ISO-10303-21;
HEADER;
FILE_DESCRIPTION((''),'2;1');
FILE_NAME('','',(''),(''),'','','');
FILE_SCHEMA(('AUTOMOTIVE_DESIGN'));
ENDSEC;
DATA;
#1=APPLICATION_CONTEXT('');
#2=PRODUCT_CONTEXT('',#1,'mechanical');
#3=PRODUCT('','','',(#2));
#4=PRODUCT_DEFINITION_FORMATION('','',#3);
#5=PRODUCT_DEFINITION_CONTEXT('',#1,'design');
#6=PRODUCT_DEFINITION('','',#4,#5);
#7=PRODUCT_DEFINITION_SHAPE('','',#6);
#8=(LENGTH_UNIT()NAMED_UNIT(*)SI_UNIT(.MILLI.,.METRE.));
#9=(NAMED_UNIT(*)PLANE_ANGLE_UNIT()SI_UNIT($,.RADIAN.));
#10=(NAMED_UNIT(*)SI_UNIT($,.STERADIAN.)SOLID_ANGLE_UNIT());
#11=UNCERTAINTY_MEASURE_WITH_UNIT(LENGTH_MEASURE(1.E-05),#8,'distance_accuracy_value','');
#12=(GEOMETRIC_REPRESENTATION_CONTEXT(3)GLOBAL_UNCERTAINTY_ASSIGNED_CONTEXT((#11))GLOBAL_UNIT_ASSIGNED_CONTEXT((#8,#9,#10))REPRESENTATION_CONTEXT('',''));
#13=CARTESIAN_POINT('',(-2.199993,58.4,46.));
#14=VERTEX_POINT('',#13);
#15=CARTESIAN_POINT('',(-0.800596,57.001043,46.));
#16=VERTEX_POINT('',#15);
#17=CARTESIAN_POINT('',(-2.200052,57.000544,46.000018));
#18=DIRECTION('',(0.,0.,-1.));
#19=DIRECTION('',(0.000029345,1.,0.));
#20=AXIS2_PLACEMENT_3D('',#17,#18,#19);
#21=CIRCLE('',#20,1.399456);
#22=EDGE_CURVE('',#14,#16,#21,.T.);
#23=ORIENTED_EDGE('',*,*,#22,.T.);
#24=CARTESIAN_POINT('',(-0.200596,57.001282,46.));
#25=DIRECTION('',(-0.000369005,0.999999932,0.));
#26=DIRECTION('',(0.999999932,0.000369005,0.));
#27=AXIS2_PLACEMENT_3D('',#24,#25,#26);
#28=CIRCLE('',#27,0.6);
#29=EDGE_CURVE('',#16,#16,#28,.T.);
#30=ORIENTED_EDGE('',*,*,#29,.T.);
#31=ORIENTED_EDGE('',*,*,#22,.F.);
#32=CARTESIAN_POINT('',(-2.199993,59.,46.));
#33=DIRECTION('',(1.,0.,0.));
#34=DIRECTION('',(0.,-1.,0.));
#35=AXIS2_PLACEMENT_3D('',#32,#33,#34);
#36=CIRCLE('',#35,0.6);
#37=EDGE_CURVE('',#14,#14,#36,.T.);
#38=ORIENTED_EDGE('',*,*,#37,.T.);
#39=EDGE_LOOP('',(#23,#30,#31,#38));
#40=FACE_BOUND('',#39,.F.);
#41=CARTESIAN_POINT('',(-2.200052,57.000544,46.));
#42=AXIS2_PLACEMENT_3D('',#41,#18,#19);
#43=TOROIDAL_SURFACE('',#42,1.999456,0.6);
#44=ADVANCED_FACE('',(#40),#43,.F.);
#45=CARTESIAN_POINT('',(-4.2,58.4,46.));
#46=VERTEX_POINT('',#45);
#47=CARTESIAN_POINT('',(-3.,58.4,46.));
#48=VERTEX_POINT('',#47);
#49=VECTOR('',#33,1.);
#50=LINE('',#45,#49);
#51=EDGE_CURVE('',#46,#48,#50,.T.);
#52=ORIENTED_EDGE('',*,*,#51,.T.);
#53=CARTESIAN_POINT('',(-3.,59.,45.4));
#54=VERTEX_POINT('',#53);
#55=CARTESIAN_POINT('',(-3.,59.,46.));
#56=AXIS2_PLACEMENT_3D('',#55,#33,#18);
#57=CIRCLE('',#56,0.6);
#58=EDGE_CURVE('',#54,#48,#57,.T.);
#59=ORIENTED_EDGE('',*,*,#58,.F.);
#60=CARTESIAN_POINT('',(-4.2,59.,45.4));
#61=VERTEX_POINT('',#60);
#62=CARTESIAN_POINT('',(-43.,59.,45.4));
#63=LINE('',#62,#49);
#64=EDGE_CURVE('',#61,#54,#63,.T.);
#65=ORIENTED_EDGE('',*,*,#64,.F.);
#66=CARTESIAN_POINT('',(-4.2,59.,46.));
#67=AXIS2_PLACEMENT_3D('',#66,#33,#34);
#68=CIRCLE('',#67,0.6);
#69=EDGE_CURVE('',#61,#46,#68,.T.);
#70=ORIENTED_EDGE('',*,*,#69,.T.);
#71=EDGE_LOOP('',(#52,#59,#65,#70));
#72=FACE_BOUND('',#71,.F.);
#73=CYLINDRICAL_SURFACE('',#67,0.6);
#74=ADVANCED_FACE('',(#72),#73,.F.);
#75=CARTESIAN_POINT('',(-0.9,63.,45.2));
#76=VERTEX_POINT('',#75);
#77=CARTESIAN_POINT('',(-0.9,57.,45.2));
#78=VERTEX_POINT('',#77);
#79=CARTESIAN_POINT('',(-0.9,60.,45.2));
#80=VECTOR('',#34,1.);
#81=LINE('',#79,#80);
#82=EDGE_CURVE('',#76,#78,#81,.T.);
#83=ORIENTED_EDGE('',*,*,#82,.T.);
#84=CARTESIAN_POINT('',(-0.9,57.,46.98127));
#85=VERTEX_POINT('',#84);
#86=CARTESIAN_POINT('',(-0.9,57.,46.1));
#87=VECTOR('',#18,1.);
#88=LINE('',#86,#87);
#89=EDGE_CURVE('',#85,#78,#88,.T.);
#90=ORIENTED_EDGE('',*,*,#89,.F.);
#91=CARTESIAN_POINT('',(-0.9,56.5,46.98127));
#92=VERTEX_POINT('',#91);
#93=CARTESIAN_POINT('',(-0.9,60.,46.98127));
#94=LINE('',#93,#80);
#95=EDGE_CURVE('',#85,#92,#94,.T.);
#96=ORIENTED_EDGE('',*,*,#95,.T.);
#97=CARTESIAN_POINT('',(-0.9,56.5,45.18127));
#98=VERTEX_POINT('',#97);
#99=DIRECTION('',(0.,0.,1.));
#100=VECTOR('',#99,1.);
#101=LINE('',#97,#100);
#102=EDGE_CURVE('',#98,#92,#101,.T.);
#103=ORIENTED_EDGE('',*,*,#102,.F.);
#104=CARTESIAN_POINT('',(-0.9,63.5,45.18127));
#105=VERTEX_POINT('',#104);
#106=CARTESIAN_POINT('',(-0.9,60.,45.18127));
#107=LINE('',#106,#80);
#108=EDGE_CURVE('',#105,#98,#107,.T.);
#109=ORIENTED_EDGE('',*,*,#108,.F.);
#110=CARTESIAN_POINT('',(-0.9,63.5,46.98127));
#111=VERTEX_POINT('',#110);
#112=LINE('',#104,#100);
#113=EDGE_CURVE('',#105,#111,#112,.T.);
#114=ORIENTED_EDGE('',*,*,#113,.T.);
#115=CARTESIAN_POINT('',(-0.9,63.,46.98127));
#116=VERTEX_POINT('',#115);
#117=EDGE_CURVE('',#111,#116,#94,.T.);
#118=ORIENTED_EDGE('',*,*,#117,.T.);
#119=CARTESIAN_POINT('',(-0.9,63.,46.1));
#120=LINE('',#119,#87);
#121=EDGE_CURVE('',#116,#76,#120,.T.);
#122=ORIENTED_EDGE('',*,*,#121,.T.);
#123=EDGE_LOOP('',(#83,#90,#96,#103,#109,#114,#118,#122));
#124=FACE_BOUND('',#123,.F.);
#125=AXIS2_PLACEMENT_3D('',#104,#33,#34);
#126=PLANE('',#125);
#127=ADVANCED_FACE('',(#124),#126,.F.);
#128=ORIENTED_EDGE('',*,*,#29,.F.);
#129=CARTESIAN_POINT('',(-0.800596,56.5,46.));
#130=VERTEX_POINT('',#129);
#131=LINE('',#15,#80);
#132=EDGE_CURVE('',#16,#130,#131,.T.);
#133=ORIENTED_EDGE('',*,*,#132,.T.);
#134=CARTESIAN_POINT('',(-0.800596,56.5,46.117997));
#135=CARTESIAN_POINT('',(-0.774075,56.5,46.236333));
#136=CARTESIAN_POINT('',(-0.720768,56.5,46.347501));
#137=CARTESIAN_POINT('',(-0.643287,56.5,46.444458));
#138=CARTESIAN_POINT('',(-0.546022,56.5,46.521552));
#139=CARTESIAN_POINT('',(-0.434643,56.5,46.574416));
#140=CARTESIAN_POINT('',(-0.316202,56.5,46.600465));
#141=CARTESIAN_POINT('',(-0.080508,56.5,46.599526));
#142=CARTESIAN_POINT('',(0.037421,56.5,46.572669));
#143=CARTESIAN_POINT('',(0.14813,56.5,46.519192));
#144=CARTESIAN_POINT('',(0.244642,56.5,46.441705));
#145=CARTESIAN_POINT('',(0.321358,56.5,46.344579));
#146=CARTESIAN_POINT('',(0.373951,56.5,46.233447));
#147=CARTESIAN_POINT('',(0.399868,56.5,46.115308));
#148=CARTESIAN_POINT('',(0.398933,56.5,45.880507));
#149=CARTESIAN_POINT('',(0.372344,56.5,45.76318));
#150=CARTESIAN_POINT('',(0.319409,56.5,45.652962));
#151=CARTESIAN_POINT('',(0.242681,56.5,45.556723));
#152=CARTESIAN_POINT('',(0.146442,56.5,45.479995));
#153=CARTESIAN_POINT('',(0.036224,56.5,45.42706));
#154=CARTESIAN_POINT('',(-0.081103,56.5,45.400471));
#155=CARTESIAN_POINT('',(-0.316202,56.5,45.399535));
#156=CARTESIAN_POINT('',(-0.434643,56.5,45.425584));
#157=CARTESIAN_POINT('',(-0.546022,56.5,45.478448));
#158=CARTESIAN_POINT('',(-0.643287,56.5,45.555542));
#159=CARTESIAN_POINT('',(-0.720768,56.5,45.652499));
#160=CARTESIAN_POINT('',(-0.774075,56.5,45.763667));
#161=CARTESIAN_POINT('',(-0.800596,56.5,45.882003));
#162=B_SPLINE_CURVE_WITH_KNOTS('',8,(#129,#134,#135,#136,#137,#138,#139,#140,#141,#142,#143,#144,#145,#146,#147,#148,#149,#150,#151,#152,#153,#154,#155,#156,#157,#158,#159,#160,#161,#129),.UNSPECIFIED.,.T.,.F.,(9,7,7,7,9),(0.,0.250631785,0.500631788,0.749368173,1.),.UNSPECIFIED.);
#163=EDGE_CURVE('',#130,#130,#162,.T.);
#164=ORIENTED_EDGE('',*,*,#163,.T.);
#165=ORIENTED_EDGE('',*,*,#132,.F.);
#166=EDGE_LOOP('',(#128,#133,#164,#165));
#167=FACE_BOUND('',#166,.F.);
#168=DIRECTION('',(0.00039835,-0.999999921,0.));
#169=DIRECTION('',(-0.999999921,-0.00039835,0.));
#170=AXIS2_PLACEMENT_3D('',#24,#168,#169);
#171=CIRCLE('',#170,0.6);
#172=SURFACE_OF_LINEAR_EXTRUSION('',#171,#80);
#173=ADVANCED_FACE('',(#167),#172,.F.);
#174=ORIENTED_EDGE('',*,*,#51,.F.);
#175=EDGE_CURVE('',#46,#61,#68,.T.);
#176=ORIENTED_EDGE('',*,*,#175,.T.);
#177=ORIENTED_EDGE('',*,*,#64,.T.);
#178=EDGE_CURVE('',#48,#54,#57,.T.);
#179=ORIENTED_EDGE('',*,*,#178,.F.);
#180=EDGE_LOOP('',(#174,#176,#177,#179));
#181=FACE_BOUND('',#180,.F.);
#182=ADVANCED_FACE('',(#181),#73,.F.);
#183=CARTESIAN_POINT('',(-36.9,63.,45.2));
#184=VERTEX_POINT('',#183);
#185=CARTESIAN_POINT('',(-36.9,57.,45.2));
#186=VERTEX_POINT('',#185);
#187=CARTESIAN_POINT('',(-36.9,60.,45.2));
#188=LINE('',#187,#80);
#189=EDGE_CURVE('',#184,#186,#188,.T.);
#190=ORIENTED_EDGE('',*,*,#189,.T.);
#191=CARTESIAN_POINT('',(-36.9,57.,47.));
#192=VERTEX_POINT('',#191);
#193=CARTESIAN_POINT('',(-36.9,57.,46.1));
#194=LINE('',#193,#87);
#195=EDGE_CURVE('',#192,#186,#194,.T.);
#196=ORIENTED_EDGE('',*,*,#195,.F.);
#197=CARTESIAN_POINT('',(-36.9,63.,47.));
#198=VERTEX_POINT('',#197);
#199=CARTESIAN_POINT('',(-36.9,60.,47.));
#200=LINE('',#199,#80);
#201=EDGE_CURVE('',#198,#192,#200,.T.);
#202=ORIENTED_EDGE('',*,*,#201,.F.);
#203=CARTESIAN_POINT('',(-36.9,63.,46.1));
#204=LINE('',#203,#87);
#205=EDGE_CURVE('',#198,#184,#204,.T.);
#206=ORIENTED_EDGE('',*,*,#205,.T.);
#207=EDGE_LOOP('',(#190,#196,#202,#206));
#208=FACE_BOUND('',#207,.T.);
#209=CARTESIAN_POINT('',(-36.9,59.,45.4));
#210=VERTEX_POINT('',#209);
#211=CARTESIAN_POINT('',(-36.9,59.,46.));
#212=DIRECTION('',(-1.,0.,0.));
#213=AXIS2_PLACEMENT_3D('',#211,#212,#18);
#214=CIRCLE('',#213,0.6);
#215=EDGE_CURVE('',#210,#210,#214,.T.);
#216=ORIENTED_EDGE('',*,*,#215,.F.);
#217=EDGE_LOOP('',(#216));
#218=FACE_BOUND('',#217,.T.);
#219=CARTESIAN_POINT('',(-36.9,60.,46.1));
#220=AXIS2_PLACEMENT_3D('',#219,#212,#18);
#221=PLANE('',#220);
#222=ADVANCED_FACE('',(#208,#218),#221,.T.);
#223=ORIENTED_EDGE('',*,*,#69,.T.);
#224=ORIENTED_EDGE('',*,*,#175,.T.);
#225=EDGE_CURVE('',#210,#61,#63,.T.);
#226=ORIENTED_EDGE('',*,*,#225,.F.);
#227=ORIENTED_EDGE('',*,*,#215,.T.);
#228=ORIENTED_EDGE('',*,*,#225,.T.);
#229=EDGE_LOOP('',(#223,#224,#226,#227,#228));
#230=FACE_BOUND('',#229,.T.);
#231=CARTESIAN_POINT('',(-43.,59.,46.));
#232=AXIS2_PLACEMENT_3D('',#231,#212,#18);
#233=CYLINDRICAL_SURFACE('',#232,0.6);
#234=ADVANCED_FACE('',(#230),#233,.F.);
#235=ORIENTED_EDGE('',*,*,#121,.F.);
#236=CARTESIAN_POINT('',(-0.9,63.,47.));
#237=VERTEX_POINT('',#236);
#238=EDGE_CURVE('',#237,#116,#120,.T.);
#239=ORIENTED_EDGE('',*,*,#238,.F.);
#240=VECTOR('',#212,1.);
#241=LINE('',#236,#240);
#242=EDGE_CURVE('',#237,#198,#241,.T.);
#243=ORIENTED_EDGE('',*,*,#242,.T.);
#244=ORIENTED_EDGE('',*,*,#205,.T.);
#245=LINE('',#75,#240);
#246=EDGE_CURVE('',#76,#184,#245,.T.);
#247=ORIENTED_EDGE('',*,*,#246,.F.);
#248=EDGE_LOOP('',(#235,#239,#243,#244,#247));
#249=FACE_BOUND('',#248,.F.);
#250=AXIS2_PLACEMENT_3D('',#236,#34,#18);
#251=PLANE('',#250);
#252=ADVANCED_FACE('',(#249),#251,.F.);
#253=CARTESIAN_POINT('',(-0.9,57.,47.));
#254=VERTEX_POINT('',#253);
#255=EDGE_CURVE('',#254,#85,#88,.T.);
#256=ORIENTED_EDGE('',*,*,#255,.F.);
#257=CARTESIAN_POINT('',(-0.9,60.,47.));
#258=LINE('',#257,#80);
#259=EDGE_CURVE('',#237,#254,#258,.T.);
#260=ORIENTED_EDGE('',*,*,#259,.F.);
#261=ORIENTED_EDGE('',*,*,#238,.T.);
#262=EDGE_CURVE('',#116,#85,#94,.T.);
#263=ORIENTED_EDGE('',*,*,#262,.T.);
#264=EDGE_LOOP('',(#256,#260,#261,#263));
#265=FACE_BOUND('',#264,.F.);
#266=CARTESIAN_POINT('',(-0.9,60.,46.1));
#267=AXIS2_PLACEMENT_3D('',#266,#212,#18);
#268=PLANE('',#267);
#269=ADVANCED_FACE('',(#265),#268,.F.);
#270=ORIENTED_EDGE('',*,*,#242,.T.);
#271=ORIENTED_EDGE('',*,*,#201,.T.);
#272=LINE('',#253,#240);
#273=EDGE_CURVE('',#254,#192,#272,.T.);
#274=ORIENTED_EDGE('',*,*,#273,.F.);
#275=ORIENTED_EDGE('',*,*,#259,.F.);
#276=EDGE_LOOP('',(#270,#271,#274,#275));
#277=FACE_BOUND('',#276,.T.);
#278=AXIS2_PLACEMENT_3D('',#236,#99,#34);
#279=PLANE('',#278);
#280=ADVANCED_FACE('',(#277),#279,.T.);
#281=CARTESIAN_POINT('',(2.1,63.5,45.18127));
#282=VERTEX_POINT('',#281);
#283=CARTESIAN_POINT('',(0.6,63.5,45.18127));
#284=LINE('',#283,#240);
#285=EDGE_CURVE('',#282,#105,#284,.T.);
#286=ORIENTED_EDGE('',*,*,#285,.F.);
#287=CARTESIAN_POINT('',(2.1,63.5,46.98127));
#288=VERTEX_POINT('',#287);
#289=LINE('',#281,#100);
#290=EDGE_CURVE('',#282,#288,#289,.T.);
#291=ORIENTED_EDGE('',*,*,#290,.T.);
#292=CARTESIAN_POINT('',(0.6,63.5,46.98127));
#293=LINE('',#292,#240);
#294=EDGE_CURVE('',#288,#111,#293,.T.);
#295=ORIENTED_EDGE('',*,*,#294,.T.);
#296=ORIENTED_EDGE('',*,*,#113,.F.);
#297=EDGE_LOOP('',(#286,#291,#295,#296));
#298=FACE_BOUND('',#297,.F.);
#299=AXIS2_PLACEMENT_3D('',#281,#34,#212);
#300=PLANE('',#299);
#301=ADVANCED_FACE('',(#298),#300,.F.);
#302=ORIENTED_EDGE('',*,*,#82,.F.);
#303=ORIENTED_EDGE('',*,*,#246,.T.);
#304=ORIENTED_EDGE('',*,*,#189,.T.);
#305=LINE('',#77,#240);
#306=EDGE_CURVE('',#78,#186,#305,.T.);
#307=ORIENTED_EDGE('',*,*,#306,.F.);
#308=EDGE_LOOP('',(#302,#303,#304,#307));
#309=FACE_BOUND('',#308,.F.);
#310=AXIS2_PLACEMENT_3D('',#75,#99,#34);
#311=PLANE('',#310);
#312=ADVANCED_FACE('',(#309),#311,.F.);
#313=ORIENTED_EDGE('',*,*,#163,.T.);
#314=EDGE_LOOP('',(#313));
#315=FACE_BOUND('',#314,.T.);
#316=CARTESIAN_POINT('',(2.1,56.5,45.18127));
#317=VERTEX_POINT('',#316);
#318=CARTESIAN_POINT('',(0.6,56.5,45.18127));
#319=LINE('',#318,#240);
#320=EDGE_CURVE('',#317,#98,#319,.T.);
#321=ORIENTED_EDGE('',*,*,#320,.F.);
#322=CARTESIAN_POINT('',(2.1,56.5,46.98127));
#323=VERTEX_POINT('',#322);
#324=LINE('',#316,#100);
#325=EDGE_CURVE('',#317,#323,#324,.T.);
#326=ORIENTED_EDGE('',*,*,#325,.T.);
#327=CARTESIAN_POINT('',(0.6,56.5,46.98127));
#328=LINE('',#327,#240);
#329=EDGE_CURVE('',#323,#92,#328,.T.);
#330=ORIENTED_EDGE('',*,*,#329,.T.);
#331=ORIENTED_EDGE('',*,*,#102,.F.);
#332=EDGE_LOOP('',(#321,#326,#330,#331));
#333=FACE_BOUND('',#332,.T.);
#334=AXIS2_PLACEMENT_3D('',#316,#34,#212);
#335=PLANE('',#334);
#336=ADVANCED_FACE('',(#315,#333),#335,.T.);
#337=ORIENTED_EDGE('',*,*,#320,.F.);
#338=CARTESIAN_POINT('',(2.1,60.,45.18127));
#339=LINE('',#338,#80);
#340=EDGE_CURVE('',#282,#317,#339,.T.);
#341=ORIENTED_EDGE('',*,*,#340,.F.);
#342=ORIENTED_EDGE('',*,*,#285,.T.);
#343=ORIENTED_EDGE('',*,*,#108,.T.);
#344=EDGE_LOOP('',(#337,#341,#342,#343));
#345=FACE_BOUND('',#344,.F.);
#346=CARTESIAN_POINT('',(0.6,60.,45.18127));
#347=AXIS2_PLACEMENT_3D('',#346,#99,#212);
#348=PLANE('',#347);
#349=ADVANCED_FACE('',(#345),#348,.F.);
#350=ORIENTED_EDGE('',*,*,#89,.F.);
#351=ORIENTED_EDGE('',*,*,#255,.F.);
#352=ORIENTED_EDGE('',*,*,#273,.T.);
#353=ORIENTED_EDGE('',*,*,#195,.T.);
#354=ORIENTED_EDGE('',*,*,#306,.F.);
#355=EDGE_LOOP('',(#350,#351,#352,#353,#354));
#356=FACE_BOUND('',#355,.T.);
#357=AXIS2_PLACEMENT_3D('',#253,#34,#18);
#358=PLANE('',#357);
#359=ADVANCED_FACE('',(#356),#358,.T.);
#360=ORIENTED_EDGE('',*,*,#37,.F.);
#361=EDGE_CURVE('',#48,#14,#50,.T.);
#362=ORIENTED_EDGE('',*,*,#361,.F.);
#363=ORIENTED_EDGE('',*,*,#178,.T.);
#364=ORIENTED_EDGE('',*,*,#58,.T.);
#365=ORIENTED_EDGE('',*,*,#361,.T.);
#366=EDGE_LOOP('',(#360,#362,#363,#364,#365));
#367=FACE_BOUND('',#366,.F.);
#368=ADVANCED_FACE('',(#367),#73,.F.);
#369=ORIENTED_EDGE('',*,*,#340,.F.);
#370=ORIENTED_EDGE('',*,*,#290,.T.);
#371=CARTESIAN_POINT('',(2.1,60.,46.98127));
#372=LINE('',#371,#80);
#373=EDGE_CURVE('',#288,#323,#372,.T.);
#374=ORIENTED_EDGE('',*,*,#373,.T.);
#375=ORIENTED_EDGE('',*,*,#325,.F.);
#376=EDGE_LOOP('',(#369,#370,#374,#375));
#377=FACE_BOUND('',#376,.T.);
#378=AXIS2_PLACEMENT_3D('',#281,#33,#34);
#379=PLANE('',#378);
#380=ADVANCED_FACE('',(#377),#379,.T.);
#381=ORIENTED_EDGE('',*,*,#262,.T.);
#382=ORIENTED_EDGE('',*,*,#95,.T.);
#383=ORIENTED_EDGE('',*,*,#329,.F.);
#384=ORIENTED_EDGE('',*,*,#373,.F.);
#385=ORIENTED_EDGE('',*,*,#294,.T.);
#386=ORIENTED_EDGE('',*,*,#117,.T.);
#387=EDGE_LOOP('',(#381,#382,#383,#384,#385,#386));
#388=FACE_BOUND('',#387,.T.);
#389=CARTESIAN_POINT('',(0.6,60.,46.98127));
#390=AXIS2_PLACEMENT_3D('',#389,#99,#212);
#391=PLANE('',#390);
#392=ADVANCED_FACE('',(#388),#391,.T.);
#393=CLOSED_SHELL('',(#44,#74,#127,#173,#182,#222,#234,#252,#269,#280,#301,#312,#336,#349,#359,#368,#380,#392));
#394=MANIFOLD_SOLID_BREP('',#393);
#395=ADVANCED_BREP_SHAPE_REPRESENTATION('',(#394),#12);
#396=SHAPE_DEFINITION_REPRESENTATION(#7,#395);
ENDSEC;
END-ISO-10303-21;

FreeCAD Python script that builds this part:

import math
import FreeCAD as App
import Part
import Sketcher
from FreeCAD import Vector
Q = App.Units.Quantity


def add_polygon(sketch, points):
    """Adds a closed chain of lines whose ends are joined by coincident constraints."""
    first, n = sketch.GeometryCount, len(points)
    for a, b in zip(points, points[1:] + points[:1]):
        sketch.addGeometry(Part.LineSegment(App.Vector(*a, 0), App.Vector(*b, 0)), False)
    for i in range(n):
        sketch.addConstraint(Sketcher.Constraint("Coincident", first + i, 2, first + (i + 1) % n, 1))

doc = App.newDocument("Part")
body = doc.addObject("PartDesign::Body", "Body")

# Sketch on XY plane
sketch1 = body.newObject("Sketcher::SketchObject", "Sketch")
sketch1.AttachmentSupport = (doc.getObject("XY_Plane"), [""])
sketch1.MapMode = "FlatFace"
sketch1.addGeometry(Part.Circle(Vector(0, 0, 0), Vector(0, 0, 1), 0.6), False)
sketch1.addConstraint([
    Sketcher.Constraint("Coincident", 0, 3, -1, 1),
    Sketcher.Constraint("Diameter", 0, Q("1.2 mm")),
])
pad1 = body.newObject("PartDesign::Pad", "Pad")
pad1.Profile = sketch1
pad1.Length = 40
body2 = doc.addObject("PartDesign::Body", "Body001")
doc.recompute()

body.Placement = App.Placement(Vector(0, 0, 0), App.Rotation(Vector(0, 1, 0), 90))
boolean = body2.newObject("PartDesign::Boolean", "Boolean")
boolean.Type = "Fuse"
boolean.addObjects([body])
body3 = doc.addObject("PartDesign::Body", "Body002")
doc.recompute()

body2.Placement = App.Placement(Vector(-43, 59, 57), App.Rotation(Vector(0, 0, 1), 0))
boolean2 = body3.newObject("PartDesign::Boolean", "Boolean001")
boolean2.Type = "Fuse"
boolean2.addObjects([body2])
body4 = doc.addObject("PartDesign::Body", "Body003")

# Sketch on YZ plane
sketch2 = body4.newObject("Sketcher::SketchObject", "Sketch001")
sketch2.AttachmentSupport = (doc.getObject("YZ_Plane003"), [""])
sketch2.MapMode = "FlatFace"
sketch2.addGeometry(Part.Circle(Vector(0, 0, 0), Vector(0, 0, 1), 0.6), False)
sketch2.addConstraint([
    Sketcher.Constraint("Coincident", 0, 3, -1, 1),
    Sketcher.Constraint("Diameter", 0, Q("1.2 mm")),
])

# Sketch on XY plane
sketch3 = body4.newObject("Sketcher::SketchObject", "Sketch002")
sketch3.AttachmentSupport = (doc.getObject("XY_Plane003"), [""])
sketch3.MapMode = "FlatFace"
sketch3.addGeometry([
    Part.LineSegment(Vector(0, 0, 0), Vector(2, 0, 0)),
    Part.ArcOfCircle(Part.Circle(Vector(2, 2, 0), Vector(0, 0, 1), 2), math.radians(-90), math.radians(0)),
    Part.LineSegment(Vector(4, 2, 0), Vector(4, 4, 0)),
], False)
sketch3.addConstraint([
    Sketcher.Constraint("Coincident", 0, 2, 1, 1),
    Sketcher.Constraint("Coincident", 1, 2, 2, 1),
    Sketcher.Constraint("Horizontal", 0),
    Sketcher.Constraint("Vertical", 2),
    Sketcher.Constraint("Coincident", 0, 1, -1, 1),
    Sketcher.Constraint("Radius", 1, Q("1.999456 mm")),
    Sketcher.Constraint("DistanceY", 2, 1, 2, 2, Q("2.000912 mm")),
    Sketcher.Constraint("DistanceX", 0, 1, 0, 2, Q("2.000007 mm")),
    Sketcher.Constraint("DistanceX", -1, 1, 1, 3, Q("1.999948 mm")),
    Sketcher.Constraint("DistanceY", -1, 1, 1, 2, Q("1.998718 mm")),
])
doc.recompute()

additivepipe = body4.newObject("PartDesign::AdditivePipe", "AdditivePipe")
additivepipe.Profile = sketch2
additivepipe.Spine = (sketch3, ["Edge1", "Edge2", "Edge3"])
additivepipe.Transition = "Right corner"
body5 = doc.addObject("PartDesign::Body", "Body004")
doc.recompute()

body4.Placement = App.Placement(Vector(-4.2, 59, 57), App.Rotation(Vector(1, 0, 0), 180))
boolean3 = body5.newObject("PartDesign::Boolean", "Boolean002")
boolean3.Type = "Fuse"
boolean3.addObjects([body4])
doc.recompute()

boolean4 = body5.newObject("PartDesign::Boolean", "Boolean003")
boolean4.Type = "Fuse"
boolean4.addObjects([body3])
body6 = doc.addObject("PartDesign::Body", "Body005")

# Sketch on XY plane
sketch4 = body6.newObject("Sketcher::SketchObject", "Sketch003")
sketch4.AttachmentSupport = (doc.getObject("XY_Plane005"), [""])
sketch4.MapMode = "FlatFace"
sketch4.AttachmentOffset = App.Placement(Vector(0, 0, -1.81873), App.Rotation())
add_polygon(sketch4, [(-3, 6.5), (-3, -0.5), (0, -0.5), (0, 6.5)])  # lines 0-3
sketch4.addConstraint([
    Sketcher.Constraint("Vertical", 0),
    Sketcher.Constraint("Horizontal", 1),
    Sketcher.Constraint("Vertical", 2),
    Sketcher.Constraint("Horizontal", 3),
    Sketcher.Constraint("PointOnObject", 1, 2, -2),
    Sketcher.Constraint("DistanceX", 1, 1, 1, 2, Q("3 mm")),
    Sketcher.Constraint("DistanceY", 0, 2, 0, 1, Q("7 mm")),
    Sketcher.Constraint("DistanceY", 0, 2, -1, 1, Q("0.5 mm")),
])
pad2 = body6.newObject("PartDesign::Pad", "Pad001")
pad2.Profile = sketch4
pad2.Length = 1.8
body7 = doc.addObject("PartDesign::Body", "Body006")

# Sketch on XY plane
sketch5 = body7.newObject("Sketcher::SketchObject", "Sketch004")
sketch5.AttachmentSupport = (doc.getObject("XY_Plane006"), [""])
sketch5.MapMode = "FlatFace"
add_polygon(sketch5, [(0, 6), (0, 0), (1.8, 0), (1.8, 6)])  # lines 0-3
sketch5.addConstraint([
    Sketcher.Constraint("Vertical", 0),
    Sketcher.Constraint("Horizontal", 1),
    Sketcher.Constraint("Vertical", 2),
    Sketcher.Constraint("Horizontal", 3),
    Sketcher.Constraint("Coincident", 0, 2, -1, 1),
    Sketcher.Constraint("DistanceY", 0, 2, 0, 1, Q("6 mm")),
    Sketcher.Constraint("DistanceX", 1, 1, 1, 2, Q("1.8 mm")),
])
pad3 = body7.newObject("PartDesign::Pad", "Pad002")
pad3.Profile = sketch5
pad3.Length = 36
body8 = doc.addObject("PartDesign::Body", "Body007")
doc.recompute()

body7.Placement = App.Placement(Vector(0, 0, 0), App.Rotation(Vector(0, 1, 0), 90))
boolean5 = body8.newObject("PartDesign::Boolean", "Boolean004")
boolean5.Type = "Fuse"
boolean5.addObjects([body7])
doc.recompute()

boolean6 = body8.newObject("PartDesign::Boolean", "Boolean005")
boolean6.Type = "Fuse"
boolean6.addObjects([body6])
body9 = doc.addObject("PartDesign::Body", "Body008")
doc.recompute()

body8.Placement = App.Placement(Vector(-0.9, 63, 58), App.Rotation(Vector(0, 0, 1), 180))
boolean7 = body9.newObject("PartDesign::Boolean", "Boolean006")
boolean7.Type = "Fuse"
boolean7.addObjects([body8])
doc.recompute()

boolean8 = body9.newObject("PartDesign::Boolean", "Boolean007")
boolean8.Type = "Cut"
boolean8.addObjects([body5])
body10 = doc.addObject("PartDesign::Body", "Body009")
doc.recompute()

body9.Placement = App.Placement(Vector(0, 0, -11), App.Rotation(Vector(0, 0, 1), 0))
boolean9 = body10.newObject("PartDesign::Boolean", "Boolean008")
boolean9.Type = "Fuse"
boolean9.addObjects([body9])

doc.recompute()
